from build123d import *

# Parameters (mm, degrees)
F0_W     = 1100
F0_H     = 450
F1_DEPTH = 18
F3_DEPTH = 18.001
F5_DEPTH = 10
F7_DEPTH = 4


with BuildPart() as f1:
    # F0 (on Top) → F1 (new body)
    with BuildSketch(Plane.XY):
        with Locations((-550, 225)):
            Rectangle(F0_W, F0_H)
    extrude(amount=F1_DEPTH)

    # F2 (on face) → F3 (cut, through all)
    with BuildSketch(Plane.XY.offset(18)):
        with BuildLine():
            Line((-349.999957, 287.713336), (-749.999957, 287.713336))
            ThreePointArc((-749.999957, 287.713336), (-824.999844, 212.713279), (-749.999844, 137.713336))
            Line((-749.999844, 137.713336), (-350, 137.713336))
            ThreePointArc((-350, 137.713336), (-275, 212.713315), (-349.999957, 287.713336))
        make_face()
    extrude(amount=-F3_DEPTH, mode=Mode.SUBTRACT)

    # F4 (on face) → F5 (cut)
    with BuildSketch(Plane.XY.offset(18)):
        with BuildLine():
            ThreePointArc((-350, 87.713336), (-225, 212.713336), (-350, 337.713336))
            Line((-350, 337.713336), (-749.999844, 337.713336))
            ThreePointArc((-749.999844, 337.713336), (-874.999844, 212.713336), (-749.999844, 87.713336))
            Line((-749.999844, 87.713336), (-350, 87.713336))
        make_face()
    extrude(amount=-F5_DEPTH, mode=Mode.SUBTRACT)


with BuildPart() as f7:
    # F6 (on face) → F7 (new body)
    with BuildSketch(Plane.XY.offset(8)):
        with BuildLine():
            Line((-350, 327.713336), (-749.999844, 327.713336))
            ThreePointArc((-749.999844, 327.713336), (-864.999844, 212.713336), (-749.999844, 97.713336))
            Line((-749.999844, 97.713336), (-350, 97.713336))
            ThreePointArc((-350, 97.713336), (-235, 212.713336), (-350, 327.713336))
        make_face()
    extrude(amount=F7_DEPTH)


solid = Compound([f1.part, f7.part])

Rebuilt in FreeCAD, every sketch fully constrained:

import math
import FreeCAD as App
import Part
import Sketcher
from FreeCAD import Vector
Q = App.Units.Quantity


def add_polygon(sketch, points):
    """Adds a closed chain of lines whose ends are joined by coincident constraints."""
    first, n = sketch.GeometryCount, len(points)
    for a, b in zip(points, points[1:] + points[:1]):
        sketch.addGeometry(Part.LineSegment(App.Vector(*a, 0), App.Vector(*b, 0)), False)
    for i in range(n):
        sketch.addConstraint(Sketcher.Constraint("Coincident", first + i, 2, first + (i + 1) % n, 1))

doc = App.newDocument("Part")
body = doc.addObject("PartDesign::Body", "Body")

# Sketch on XY plane
sketch1 = body.newObject("Sketcher::SketchObject", "Sketch")
sketch1.AttachmentSupport = (doc.getObject("XY_Plane"), [""])
sketch1.MapMode = "FlatFace"
add_polygon(sketch1, [(-1100, 450), (-1100, 0), (0, 0), (0, 450)])  # lines 0-3
sketch1.addConstraint(Sketcher.Constraint("Vertical", 0))
sketch1.addConstraint(Sketcher.Constraint("Horizontal", 1))
sketch1.addConstraint(Sketcher.Constraint("Vertical", 2))
sketch1.addConstraint(Sketcher.Constraint("Horizontal", 3))
sketch1.addConstraint(Sketcher.Constraint("Coincident", 1, 2, -1, 1))
sketch1.addConstraint(Sketcher.Constraint("DistanceX", 1, 1, 1, 2, Q("1100 mm")))
sketch1.addConstraint(Sketcher.Constraint("DistanceY", 0, 2, 0, 1, Q("450 mm")))
pad1 = body.newObject("PartDesign::Pad", "Pad")
pad1.Profile = sketch1
pad1.Length = 18

# Sketch on XY plane
sketch2 = body.newObject("Sketcher::SketchObject", "Sketch001")
sketch2.AttachmentSupport = (doc.getObject("XY_Plane"), [""])
sketch2.MapMode = "FlatFace"
sketch2.AttachmentOffset = App.Placement(Vector(0, 0, 18), App.Rotation())
sketch2.addGeometry(Part.LineSegment(Vector(-349.999957, 287.713336, 0), Vector(-749.999957, 287.713336, 0)), False)
sketch2.addGeometry(Part.ArcOfCircle(Part.Circle(Vector(-749.999844, 212.713336, 0), Vector(0, 0, 1), 75), math.radians(90.000086), math.radians(270)), False)
sketch2.addGeometry(Part.LineSegment(Vector(-749.999844, 137.713336, 0), Vector(-350, 137.713336, 0)), False)
sketch2.addGeometry(Part.ArcOfCircle(Part.Circle(Vector(-350, 212.713336, 0), Vector(0, 0, 1), 75), math.radians(-90), math.radians(89.999967)), False)
sketch2.addConstraint(Sketcher.Constraint("Tangent", 0, 2, 1, 1))
sketch2.addConstraint(Sketcher.Constraint("Tangent", 1, 2, 2, 1))
sketch2.addConstraint(Sketcher.Constraint("Tangent", 2, 2, 3, 1))
sketch2.addConstraint(Sketcher.Constraint("Tangent", 3, 2, 0, 1))
sketch2.addConstraint(Sketcher.Constraint("Horizontal", 0))
sketch2.addConstraint(Sketcher.Constraint("Horizontal", 2))
sketch2.addConstraint(Sketcher.Constraint("Radius", 1, Q("75 mm")))
sketch2.addConstraint(Sketcher.Constraint("DistanceX", 0, 2, 0, 1, Q("400 mm")))
sketch2.addConstraint(Sketcher.Constraint("DistanceX", 3, 3, -1, 1, Q("350 mm")))
sketch2.addConstraint(Sketcher.Constraint("DistanceY", -1, 1, 1, 3, Q("212.713336 mm")))
pocket1 = body.newObject("PartDesign::Pocket", "Pocket")
pocket1.Profile = sketch2
pocket1.Type = "ThroughAll"

# Sketch on XY plane
sketch3 = body.newObject("Sketcher::SketchObject", "Sketch002")
sketch3.AttachmentSupport = (doc.getObject("XY_Plane"), [""])
sketch3.MapMode = "FlatFace"
sketch3.AttachmentOffset = App.Placement(Vector(0, 0, 18), App.Rotation())
sketch3.addGeometry(Part.ArcOfCircle(Part.Circle(Vector(-350, 213, 0), Vector(0, 0, 1), 125), math.radians(-90), math.radians(90)), False)
sketch3.addGeometry(Part.LineSegment(Vector(-350, 338, 0), Vector(-750, 338, 0)), False)
sketch3.addGeometry(Part.ArcOfCircle(Part.Circle(Vector(-750, 213, 0), Vector(0, 0, 1), 125), math.radians(90), math.radians(270)), False)
sketch3.addGeometry(Part.LineSegment(Vector(-750, 88, 0), Vector(-350, 88, 0)), False)
sketch3.addConstraint(Sketcher.Constraint("Tangent", 0, 2, 1, 1))
sketch3.addConstraint(Sketcher.Constraint("Tangent", 1, 2, 2, 1))
sketch3.addConstraint(Sketcher.Constraint("Tangent", 2, 2, 3, 1))
sketch3.addConstraint(Sketcher.Constraint("Tangent", 3, 2, 0, 1))
sketch3.addConstraint(Sketcher.Constraint("Horizontal", 1))
sketch3.addConstraint(Sketcher.Constraint("Horizontal", 3))
sketch3.addConstraint(Sketcher.Constraint("Radius", 0, Q("125 mm")))
sketch3.addConstraint(Sketcher.Constraint("DistanceX", 0, 3, -1, 1, Q("350 mm")))
sketch3.addConstraint(Sketcher.Constraint("DistanceX", 1, 2, 1, 1, Q("399.999844 mm")))
sketch3.addConstraint(Sketcher.Constraint("DistanceY", -1, 1, 0, 3, Q("212.713336 mm")))
pocket2 = body.newObject("PartDesign::Pocket", "Pocket001")
pocket2.Profile = sketch3
pocket2.Length = 10
body2 = doc.addObject("PartDesign::Body", "Body001")

# Sketch on XY plane
sketch4 = body2.newObject("Sketcher::SketchObject", "Sketch003")
sketch4.AttachmentSupport = (doc.getObject("XY_Plane001"), [""])
sketch4.MapMode = "FlatFace"
sketch4.AttachmentOffset = App.Placement(Vector(0, 0, 8), App.Rotation())
sketch4.addGeometry(Part.LineSegment(Vector(-350, 328, 0), Vector(-750, 328, 0)), False)
sketch4.addGeometry(Part.ArcOfCircle(Part.Circle(Vector(-750, 213, 0), Vector(0, 0, 1), 115), math.radians(90), math.radians(270)), False)
sketch4.addGeometry(Part.LineSegment(Vector(-750, 98, 0), Vector(-350, 98, 0)), False)
sketch4.addGeometry(Part.ArcOfCircle(Part.Circle(Vector(-350, 213, 0), Vector(0, 0, 1), 115), math.radians(-90), math.radians(90)), False)
sketch4.addConstraint(Sketcher.Constraint("Tangent", 0, 2, 1, 1))
sketch4.addConstraint(Sketcher.Constraint("Tangent", 1, 2, 2, 1))
sketch4.addConstraint(Sketcher.Constraint("Tangent", 2, 2, 3, 1))
sketch4.addConstraint(Sketcher.Constraint("Tangent", 3, 2, 0, 1))
sketch4.addConstraint(Sketcher.Constraint("Horizontal", 0))
sketch4.addConstraint(Sketcher.Constraint("Horizontal", 2))
sketch4.addConstraint(Sketcher.Constraint("Radius", 1, Q("115 mm")))
sketch4.addConstraint(Sketcher.Constraint("DistanceX", 3, 3, -1, 1, Q("350 mm")))
sketch4.addConstraint(Sketcher.Constraint("DistanceX", 0, 2, 0, 1, Q("399.999844 mm")))
sketch4.addConstraint(Sketcher.Constraint("DistanceY", -1, 1, 1, 3, Q("212.713336 mm")))
pad2 = body2.newObject("PartDesign::Pad", "Pad001")
pad2.Profile = sketch4
pad2.Length = 4

doc.recompute()
